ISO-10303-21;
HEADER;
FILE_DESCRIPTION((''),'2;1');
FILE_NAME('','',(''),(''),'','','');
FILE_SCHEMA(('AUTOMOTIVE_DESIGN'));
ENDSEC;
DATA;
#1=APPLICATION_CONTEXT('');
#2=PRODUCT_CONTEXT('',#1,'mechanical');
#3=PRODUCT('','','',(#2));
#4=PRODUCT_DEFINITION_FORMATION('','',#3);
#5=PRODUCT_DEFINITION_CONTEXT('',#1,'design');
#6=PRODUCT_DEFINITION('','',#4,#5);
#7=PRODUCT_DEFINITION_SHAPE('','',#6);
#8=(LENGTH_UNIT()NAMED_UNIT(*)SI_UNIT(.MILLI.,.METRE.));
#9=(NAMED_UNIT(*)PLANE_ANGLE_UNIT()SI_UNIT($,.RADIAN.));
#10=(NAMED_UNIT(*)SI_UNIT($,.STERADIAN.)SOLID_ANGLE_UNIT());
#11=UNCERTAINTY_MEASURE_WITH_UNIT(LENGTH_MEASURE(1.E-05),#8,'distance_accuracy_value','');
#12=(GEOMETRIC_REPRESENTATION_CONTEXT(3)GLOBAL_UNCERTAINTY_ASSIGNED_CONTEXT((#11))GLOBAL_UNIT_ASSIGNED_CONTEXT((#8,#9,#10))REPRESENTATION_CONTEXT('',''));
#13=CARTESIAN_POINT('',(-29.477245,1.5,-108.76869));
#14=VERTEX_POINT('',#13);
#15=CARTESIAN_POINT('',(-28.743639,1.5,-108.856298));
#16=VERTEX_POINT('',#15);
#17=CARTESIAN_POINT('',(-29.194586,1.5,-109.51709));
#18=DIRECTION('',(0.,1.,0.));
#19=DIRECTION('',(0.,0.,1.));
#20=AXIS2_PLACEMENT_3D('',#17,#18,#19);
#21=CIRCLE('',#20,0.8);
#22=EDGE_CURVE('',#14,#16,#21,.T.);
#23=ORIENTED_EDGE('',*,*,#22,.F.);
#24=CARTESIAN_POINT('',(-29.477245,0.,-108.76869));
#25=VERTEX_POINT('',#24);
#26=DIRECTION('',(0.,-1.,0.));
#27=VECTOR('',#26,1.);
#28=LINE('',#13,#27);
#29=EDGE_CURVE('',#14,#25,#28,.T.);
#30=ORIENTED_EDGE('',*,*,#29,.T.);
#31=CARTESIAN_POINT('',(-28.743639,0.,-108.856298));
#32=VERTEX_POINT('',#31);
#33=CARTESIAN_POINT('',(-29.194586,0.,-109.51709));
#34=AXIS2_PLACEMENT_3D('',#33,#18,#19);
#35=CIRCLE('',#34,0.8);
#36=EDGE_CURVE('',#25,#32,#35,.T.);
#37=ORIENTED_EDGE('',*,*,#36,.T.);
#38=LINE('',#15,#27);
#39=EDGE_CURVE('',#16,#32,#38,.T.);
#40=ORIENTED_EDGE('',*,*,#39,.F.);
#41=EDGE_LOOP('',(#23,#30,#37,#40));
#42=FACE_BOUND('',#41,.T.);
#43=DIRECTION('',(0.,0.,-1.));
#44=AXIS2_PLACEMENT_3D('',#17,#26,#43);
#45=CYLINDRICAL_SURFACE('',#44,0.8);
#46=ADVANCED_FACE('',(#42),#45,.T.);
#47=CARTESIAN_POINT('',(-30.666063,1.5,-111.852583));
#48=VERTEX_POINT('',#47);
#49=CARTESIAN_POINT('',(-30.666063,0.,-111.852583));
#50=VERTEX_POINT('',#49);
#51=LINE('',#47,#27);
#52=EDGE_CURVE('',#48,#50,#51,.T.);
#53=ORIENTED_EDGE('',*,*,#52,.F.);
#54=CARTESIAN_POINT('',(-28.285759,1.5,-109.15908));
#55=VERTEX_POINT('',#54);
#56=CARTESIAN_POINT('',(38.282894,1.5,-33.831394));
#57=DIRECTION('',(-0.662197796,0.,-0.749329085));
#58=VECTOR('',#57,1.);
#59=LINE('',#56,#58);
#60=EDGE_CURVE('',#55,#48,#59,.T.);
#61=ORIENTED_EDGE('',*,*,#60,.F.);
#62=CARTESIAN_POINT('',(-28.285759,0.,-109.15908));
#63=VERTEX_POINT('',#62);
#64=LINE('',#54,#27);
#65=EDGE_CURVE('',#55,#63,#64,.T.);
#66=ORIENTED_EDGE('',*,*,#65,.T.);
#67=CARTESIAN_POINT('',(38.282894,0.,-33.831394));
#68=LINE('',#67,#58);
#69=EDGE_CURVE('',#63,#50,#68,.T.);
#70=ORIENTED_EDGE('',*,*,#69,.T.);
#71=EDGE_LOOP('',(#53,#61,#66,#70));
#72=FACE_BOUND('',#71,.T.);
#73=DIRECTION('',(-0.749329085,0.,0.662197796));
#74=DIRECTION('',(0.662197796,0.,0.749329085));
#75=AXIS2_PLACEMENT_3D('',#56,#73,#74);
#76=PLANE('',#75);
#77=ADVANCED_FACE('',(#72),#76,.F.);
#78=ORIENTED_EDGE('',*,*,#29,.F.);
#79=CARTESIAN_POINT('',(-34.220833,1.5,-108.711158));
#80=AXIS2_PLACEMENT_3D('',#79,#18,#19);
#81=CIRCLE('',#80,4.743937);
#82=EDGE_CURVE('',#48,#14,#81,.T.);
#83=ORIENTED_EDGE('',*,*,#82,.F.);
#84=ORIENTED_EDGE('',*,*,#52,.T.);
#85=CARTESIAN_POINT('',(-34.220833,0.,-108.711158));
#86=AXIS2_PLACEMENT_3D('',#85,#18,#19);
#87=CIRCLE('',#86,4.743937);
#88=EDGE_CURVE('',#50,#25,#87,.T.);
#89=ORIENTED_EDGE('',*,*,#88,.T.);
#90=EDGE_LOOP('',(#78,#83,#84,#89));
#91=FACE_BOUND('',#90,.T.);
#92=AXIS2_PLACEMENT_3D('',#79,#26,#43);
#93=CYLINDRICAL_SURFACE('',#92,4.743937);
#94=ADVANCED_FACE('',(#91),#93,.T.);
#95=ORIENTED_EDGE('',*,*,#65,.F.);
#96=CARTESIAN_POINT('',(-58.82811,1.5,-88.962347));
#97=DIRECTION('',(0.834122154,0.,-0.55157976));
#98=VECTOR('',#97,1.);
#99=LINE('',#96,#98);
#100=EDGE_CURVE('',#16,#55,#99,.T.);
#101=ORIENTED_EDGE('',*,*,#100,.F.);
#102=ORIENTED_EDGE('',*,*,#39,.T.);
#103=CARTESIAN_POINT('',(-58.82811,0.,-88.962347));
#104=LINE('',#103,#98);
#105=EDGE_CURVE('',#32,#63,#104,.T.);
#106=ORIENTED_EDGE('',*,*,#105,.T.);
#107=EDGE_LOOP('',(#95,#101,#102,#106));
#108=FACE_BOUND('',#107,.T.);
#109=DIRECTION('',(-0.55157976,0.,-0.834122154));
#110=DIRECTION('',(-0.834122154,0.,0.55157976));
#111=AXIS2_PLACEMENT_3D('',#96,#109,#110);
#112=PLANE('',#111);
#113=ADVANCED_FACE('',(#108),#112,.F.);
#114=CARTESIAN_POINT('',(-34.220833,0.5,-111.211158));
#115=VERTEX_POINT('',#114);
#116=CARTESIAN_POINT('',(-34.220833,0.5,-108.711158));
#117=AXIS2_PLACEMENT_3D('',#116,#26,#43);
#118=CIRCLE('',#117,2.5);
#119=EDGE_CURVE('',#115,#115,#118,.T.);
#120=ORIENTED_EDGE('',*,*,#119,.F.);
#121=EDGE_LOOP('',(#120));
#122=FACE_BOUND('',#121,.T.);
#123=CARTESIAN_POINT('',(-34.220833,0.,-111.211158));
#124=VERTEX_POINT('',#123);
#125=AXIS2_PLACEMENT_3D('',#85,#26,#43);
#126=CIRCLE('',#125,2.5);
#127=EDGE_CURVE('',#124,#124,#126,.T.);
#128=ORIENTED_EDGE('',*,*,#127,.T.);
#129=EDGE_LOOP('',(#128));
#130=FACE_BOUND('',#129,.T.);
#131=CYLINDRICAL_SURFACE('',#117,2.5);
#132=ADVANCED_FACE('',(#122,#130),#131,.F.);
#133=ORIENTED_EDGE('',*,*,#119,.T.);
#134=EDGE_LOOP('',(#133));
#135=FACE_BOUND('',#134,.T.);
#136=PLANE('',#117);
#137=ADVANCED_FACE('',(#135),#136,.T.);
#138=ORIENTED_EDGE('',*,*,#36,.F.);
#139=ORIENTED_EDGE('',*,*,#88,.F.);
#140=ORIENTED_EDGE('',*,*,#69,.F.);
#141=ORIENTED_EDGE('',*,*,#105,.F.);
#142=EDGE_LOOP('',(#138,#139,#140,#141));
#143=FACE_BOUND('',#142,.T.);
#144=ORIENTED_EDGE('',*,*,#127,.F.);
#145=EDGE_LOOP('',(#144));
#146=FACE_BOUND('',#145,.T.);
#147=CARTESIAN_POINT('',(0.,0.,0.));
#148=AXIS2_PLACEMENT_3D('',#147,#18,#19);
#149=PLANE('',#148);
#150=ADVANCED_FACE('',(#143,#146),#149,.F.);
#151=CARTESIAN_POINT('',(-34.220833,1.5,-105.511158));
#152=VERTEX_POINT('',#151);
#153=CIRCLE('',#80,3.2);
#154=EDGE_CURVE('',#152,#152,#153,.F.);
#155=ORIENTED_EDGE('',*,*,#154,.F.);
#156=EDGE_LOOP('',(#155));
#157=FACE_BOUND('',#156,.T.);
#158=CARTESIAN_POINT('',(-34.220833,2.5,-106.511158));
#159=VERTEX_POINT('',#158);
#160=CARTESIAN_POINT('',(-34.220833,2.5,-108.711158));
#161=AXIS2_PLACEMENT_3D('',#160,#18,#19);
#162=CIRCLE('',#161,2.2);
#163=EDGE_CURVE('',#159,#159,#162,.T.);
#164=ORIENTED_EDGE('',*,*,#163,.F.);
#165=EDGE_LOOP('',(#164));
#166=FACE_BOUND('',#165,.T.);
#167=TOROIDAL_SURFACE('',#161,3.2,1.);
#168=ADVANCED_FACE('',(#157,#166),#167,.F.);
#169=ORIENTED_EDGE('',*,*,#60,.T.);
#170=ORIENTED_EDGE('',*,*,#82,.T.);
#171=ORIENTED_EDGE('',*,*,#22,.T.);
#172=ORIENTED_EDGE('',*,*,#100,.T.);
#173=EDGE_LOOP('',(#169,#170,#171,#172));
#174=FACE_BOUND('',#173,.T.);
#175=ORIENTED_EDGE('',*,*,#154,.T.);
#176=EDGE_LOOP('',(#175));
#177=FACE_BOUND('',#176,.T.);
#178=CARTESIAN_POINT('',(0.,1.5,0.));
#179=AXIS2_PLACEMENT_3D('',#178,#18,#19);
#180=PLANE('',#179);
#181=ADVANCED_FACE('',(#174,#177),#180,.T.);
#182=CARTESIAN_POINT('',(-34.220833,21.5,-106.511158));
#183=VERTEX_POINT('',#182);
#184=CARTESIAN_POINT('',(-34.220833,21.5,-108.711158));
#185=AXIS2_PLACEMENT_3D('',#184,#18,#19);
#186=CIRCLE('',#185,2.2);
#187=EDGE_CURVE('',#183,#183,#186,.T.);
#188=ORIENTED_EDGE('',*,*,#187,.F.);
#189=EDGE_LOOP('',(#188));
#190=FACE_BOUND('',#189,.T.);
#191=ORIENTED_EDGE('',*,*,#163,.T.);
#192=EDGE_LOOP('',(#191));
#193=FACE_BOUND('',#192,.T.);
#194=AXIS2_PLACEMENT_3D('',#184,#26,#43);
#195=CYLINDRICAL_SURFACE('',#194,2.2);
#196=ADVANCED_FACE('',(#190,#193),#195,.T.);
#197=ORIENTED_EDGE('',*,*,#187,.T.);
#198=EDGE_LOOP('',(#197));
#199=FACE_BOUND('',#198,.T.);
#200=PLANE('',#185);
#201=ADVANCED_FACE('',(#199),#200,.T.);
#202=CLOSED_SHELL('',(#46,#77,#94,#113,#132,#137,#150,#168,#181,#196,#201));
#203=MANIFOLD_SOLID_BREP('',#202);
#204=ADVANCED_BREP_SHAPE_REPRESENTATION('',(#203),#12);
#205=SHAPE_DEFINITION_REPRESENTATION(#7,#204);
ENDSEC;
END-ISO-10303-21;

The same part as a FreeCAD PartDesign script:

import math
import FreeCAD as App
import Part
import Sketcher

V = App.Vector
Q = App.Units.Quantity


def edges_at(feature, points):
    """Names of the edges that pass closest to the given points."""
    edges = feature.Shape.Edges
    near = lambda p: min(range(len(edges)), key=lambda i: edges[i].distToShape(Part.Vertex(*p))[0])
    return sorted({f"Edge{near(p) + 1}" for p in points})

doc = App.newDocument("Part")
body = doc.addObject("PartDesign::Body", "Body")

sketch1 = doc.addObject("Sketcher::SketchObject", "Sketch")
body.addObject(sketch1)
sketch1.AttachmentSupport = (doc.XZ_Plane, [""])
sketch1.MapMode = "FlatFace"
sketch1.addGeometry([
    Part.LineSegment(V(-28.7, -108.9, 0), V(-28.3, -109.2, 0)),
    Part.LineSegment(V(-28.3, -109.2, 0), V(-30.7, -111.9, 0)),
    Part.ArcOfCircle(Part.Circle(V(-34.2, -108.7, 0), V(0, 0, 1), 4.7), math.radians(-90), math.radians(-41)),
    Part.ArcOfCircle(Part.Circle(V(-34.2, -108.7, 0), V(0, 0, 1), 4.7), math.radians(-1), math.radians(270)),
    Part.ArcOfCircle(Part.Circle(V(-29.2, -109.5, 0), V(0, 0, 1), 0.8), math.radians(56), math.radians(111)),
], False)
sketch1.addConstraint([
    Sketcher.Constraint("Coincident", 0, 2, 1, 1),
    Sketcher.Constraint("Tangent", 1, 2, 2, 2),
    Sketcher.Constraint("Tangent", 2, 1, 3, 2),
    Sketcher.Constraint("Coincident", 3, 1, 4, 2),
    Sketcher.Constraint("Coincident", 4, 1, 0, 1),
    Sketcher.Constraint("Equal", 2, 3),
    Sketcher.Constraint("Vertical", 3, 3, 2, 1),
    Sketcher.Constraint("Radius", 4, Q("0.8 mm")),
    Sketcher.Constraint("Radius", 2, Q("4.743937 mm")),
    Sketcher.Constraint("DistanceY", 4, 1, -1, 1, Q("108.856298 mm")),
    Sketcher.Constraint("DistanceY", 4, 3, 3, 1, Q("0.748401 mm")),
    Sketcher.Constraint("DistanceY", 4, 3, -1, 1, Q("109.51709 mm")),
    Sketcher.Constraint("DistanceX", 0, 2, -1, 1, Q("28.285759 mm")),
    Sketcher.Constraint("DistanceY", 0, 2, -1, 1, Q("109.15908 mm")),
    Sketcher.Constraint("DistanceX", 4, 1, -1, 1, Q("28.743639 mm")),
    Sketcher.Constraint("DistanceX", 3, 3, 1, 2, Q("3.55477 mm")),
])
pad1 = doc.addObject("PartDesign::Pad", "Pad")
body.addObject(pad1)
pad1.Profile = sketch1
pad1.Length = 1.5
pad1.Reversed = True

sketch2 = doc.addObject("Sketcher::SketchObject", "Sketch001")
body.addObject(sketch2)
sketch2.AttachmentSupport = (doc.XZ_Plane, [""])
sketch2.MapMode = "FlatFace"
sketch2.AttachmentOffset = App.Placement(V(0, 0, -1.5), App.Rotation())
sketch2.addGeometry(Part.Circle(V(-34.2, -108.7, 0), V(0, 0, 1), 2.2), False)
sketch2.addConstraint([
    Sketcher.Constraint("Diameter", 0, Q("4.4 mm")),
    Sketcher.Constraint("DistanceX", 0, 3, -1, 1, Q("34.220833 mm")),
    Sketcher.Constraint("DistanceY", 0, 3, -1, 1, Q("108.711158 mm")),
])
pad2 = doc.addObject("PartDesign::Pad", "Pad001")
body.addObject(pad2)
pad2.Profile = sketch2
pad2.Length = 20
pad2.Reversed = True
doc.recompute()

fillet = doc.addObject("PartDesign::Fillet", "Fillet")
body.addObject(fillet)
fillet.Base = (pad2, edges_at(pad2, [(-34.221, 1.5, -110.911)]))
fillet.Radius = 1

sketch3 = doc.addObject("Sketcher::SketchObject", "Sketch002")
body.addObject(sketch3)
sketch3.AttachmentSupport = (doc.XZ_Plane, [""])
sketch3.MapMode = "FlatFace"
sketch3.addGeometry(Part.Circle(V(-34.2, -108.7, 0), V(0, 0, 1), 2.5), False)
sketch3.addConstraint([
    Sketcher.Constraint("Diameter", 0, Q("5 mm")),
    Sketcher.Constraint("DistanceX", 0, 3, -1, 1, Q("34.220833 mm")),
    Sketcher.Constraint("DistanceY", 0, 3, -1, 1, Q("108.711158 mm")),
])
pocket1 = doc.addObject("PartDesign::Pocket", "Pocket")
body.addObject(pocket1)
pocket1.Profile = sketch3
pocket1.Length = 0.5

doc.recompute()
